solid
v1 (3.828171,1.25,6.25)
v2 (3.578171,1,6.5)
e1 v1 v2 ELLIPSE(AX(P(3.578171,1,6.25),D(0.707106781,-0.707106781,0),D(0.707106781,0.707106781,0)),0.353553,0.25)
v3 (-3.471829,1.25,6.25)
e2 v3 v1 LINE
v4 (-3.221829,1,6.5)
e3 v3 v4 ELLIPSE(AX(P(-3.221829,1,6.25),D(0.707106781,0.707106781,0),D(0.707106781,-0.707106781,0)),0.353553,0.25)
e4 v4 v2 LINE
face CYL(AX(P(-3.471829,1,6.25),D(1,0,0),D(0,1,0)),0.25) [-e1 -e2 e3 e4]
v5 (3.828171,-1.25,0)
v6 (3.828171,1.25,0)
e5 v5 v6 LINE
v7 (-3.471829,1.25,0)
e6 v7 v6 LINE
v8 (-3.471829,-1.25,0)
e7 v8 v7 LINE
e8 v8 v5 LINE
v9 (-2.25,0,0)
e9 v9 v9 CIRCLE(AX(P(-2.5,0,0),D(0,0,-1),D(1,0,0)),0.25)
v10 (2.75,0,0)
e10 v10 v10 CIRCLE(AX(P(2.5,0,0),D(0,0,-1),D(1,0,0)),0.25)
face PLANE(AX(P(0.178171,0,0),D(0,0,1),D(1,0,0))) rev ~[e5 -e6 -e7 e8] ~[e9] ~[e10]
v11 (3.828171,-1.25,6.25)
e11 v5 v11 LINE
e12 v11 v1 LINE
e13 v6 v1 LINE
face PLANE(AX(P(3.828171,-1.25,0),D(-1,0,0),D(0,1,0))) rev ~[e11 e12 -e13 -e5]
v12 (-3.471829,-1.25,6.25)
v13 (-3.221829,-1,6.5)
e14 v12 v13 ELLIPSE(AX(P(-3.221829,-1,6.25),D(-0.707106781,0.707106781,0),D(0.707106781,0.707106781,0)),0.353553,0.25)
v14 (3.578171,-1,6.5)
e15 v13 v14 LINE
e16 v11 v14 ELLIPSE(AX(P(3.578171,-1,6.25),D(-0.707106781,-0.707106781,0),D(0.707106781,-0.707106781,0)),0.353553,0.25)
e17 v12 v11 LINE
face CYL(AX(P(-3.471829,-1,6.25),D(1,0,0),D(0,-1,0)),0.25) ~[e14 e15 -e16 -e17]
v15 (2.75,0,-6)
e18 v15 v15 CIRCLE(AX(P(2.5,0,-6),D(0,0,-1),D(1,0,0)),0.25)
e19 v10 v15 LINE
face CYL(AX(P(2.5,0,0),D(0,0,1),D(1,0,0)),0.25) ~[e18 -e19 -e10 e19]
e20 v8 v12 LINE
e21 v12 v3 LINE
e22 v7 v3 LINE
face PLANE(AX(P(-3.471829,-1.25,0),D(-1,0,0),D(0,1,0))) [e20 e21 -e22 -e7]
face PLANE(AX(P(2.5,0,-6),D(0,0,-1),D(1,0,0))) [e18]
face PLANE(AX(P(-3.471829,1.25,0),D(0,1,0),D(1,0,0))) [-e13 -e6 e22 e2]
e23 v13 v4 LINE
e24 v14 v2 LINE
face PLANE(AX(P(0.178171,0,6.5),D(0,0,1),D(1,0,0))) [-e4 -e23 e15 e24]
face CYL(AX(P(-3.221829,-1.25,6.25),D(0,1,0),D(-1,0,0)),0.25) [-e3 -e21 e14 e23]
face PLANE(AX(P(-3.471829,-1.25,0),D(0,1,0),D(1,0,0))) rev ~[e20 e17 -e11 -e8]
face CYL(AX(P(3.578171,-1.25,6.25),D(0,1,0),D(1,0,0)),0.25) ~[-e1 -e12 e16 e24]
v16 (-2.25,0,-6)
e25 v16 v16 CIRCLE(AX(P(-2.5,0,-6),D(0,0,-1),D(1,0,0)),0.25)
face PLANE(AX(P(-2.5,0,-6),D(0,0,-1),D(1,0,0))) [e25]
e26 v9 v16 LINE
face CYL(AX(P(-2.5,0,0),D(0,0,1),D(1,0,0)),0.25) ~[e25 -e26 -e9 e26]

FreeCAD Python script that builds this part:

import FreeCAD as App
import Part
import Sketcher
from FreeCAD import Vector


def edges_at(feature, points):
    """Names of the edges that pass closest to the given points."""
    edges = feature.Shape.Edges
    near = lambda p: min(range(len(edges)), key=lambda i: edges[i].distToShape(Part.Vertex(*p))[0])
    return sorted({f"Edge{near(p) + 1}" for p in points})

doc = App.newDocument("Part")
params = doc.addObject("Spreadsheet::Sheet", "Params")
for row, (alias, value) in enumerate([
    ("sketch1_width", "7.3 mm"),
    ("sketch1_height", "2.5 mm"),
    ("pad1_length", "6.5 mm"),
    ("fillet_radius", "0.25 mm"),
    ("sketch2_diameter", "0.5 mm"),
    ("pad2_length", "6 mm"),
], start=1):
    params.set(f"A{row}", alias)
    params.set(f"B{row}", "=" + value)
    params.setAlias(f"B{row}", alias)

body = doc.addObject("PartDesign::Body", "Body")

# Sketch on XY plane
sketch1 = body.newObject("Sketcher::SketchObject", "Sketch")
sketch1.AttachmentSupport = (doc.getObject("XY_Plane"), [""])
sketch1.MapMode = "FlatFace"
sketch1.addGeometry([
    Part.LineSegment(Vector(-3.5, 1.2, 0), Vector(-3.5, -1.2, 0)),
    Part.LineSegment(Vector(-3.5, -1.2, 0), Vector(3.8, -1.2, 0)),
    Part.LineSegment(Vector(3.8, -1.2, 0), Vector(3.8, 1.2, 0)),
    Part.LineSegment(Vector(3.8, 1.2, 0), Vector(-3.5, 1.2, 0)),
], False)
sketch1.addConstraint([
    Sketcher.Constraint("Coincident", 0, 2, 1, 1),
    Sketcher.Constraint("Coincident", 1, 2, 2, 1),
    Sketcher.Constraint("Coincident", 2, 2, 3, 1),
    Sketcher.Constraint("Coincident", 3, 2, 0, 1),
    Sketcher.Constraint("Vertical", 0),
    Sketcher.Constraint("Horizontal", 1),
    Sketcher.Constraint("Vertical", 2),
    Sketcher.Constraint("Horizontal", 3),
    Sketcher.Constraint("DistanceX", 1, 1, 1, 2, 7.3),
    Sketcher.Constraint("DistanceY", 0, 2, 0, 1, 2.5),
    Sketcher.Constraint("DistanceY", 0, 2, -1, 1, 1.25),
    Sketcher.Constraint("DistanceX", 0, 2, -1, 1, 3.471829),
])
sketch1.setExpression("Constraints[8]", "Params.sketch1_width")
sketch1.setExpression("Constraints[9]", "Params.sketch1_height")
pad1 = body.newObject("PartDesign::Pad", "Pad")
pad1.Profile = sketch1
pad1.setExpression("Length", "Params.pad1_length")
doc.recompute()

fillet = body.newObject("PartDesign::Fillet", "Fillet")
fillet.Base = (pad1, edges_at(pad1, [
    (0.178, -1.25, 6.5),
    (0.178, 1.25, 6.5),
    (3.828, 0, 6.5),
    (-3.472, 0, 6.5),
]))
fillet.setExpression("Radius", "Params.fillet_radius")

# Sketch on XY plane
sketch2 = body.newObject("Sketcher::SketchObject", "Sketch001")
sketch2.AttachmentSupport = (doc.getObject("XY_Plane"), [""])
sketch2.MapMode = "FlatFace"
sketch2.addGeometry([
    Part.Circle(Vector(2.5, 0, 0), Vector(0, 0, 1), 0.25),
    Part.Circle(Vector(-2.5, 0, 0), Vector(0, 0, 1), 0.25),
], False)
sketch2.addConstraint([
    Sketcher.Constraint("Equal", 0, 1),
    Sketcher.Constraint("Symmetric", 0, 3, 1, 3, -1, 1),
    Sketcher.Constraint("PointOnObject", 0, 3, -1),
    Sketcher.Constraint("Diameter", 0, 0.5),
    Sketcher.Constraint("DistanceX", 1, 3, 0, 3, 5.0),
])
sketch2.setExpression("Constraints[3]", "Params.sketch2_diameter")
pad2 = body.newObject("PartDesign::Pad", "Pad001")
pad2.Profile = sketch2
pad2.setExpression("Length", "Params.pad2_length")
pad2.Reversed = True

doc.recompute()
